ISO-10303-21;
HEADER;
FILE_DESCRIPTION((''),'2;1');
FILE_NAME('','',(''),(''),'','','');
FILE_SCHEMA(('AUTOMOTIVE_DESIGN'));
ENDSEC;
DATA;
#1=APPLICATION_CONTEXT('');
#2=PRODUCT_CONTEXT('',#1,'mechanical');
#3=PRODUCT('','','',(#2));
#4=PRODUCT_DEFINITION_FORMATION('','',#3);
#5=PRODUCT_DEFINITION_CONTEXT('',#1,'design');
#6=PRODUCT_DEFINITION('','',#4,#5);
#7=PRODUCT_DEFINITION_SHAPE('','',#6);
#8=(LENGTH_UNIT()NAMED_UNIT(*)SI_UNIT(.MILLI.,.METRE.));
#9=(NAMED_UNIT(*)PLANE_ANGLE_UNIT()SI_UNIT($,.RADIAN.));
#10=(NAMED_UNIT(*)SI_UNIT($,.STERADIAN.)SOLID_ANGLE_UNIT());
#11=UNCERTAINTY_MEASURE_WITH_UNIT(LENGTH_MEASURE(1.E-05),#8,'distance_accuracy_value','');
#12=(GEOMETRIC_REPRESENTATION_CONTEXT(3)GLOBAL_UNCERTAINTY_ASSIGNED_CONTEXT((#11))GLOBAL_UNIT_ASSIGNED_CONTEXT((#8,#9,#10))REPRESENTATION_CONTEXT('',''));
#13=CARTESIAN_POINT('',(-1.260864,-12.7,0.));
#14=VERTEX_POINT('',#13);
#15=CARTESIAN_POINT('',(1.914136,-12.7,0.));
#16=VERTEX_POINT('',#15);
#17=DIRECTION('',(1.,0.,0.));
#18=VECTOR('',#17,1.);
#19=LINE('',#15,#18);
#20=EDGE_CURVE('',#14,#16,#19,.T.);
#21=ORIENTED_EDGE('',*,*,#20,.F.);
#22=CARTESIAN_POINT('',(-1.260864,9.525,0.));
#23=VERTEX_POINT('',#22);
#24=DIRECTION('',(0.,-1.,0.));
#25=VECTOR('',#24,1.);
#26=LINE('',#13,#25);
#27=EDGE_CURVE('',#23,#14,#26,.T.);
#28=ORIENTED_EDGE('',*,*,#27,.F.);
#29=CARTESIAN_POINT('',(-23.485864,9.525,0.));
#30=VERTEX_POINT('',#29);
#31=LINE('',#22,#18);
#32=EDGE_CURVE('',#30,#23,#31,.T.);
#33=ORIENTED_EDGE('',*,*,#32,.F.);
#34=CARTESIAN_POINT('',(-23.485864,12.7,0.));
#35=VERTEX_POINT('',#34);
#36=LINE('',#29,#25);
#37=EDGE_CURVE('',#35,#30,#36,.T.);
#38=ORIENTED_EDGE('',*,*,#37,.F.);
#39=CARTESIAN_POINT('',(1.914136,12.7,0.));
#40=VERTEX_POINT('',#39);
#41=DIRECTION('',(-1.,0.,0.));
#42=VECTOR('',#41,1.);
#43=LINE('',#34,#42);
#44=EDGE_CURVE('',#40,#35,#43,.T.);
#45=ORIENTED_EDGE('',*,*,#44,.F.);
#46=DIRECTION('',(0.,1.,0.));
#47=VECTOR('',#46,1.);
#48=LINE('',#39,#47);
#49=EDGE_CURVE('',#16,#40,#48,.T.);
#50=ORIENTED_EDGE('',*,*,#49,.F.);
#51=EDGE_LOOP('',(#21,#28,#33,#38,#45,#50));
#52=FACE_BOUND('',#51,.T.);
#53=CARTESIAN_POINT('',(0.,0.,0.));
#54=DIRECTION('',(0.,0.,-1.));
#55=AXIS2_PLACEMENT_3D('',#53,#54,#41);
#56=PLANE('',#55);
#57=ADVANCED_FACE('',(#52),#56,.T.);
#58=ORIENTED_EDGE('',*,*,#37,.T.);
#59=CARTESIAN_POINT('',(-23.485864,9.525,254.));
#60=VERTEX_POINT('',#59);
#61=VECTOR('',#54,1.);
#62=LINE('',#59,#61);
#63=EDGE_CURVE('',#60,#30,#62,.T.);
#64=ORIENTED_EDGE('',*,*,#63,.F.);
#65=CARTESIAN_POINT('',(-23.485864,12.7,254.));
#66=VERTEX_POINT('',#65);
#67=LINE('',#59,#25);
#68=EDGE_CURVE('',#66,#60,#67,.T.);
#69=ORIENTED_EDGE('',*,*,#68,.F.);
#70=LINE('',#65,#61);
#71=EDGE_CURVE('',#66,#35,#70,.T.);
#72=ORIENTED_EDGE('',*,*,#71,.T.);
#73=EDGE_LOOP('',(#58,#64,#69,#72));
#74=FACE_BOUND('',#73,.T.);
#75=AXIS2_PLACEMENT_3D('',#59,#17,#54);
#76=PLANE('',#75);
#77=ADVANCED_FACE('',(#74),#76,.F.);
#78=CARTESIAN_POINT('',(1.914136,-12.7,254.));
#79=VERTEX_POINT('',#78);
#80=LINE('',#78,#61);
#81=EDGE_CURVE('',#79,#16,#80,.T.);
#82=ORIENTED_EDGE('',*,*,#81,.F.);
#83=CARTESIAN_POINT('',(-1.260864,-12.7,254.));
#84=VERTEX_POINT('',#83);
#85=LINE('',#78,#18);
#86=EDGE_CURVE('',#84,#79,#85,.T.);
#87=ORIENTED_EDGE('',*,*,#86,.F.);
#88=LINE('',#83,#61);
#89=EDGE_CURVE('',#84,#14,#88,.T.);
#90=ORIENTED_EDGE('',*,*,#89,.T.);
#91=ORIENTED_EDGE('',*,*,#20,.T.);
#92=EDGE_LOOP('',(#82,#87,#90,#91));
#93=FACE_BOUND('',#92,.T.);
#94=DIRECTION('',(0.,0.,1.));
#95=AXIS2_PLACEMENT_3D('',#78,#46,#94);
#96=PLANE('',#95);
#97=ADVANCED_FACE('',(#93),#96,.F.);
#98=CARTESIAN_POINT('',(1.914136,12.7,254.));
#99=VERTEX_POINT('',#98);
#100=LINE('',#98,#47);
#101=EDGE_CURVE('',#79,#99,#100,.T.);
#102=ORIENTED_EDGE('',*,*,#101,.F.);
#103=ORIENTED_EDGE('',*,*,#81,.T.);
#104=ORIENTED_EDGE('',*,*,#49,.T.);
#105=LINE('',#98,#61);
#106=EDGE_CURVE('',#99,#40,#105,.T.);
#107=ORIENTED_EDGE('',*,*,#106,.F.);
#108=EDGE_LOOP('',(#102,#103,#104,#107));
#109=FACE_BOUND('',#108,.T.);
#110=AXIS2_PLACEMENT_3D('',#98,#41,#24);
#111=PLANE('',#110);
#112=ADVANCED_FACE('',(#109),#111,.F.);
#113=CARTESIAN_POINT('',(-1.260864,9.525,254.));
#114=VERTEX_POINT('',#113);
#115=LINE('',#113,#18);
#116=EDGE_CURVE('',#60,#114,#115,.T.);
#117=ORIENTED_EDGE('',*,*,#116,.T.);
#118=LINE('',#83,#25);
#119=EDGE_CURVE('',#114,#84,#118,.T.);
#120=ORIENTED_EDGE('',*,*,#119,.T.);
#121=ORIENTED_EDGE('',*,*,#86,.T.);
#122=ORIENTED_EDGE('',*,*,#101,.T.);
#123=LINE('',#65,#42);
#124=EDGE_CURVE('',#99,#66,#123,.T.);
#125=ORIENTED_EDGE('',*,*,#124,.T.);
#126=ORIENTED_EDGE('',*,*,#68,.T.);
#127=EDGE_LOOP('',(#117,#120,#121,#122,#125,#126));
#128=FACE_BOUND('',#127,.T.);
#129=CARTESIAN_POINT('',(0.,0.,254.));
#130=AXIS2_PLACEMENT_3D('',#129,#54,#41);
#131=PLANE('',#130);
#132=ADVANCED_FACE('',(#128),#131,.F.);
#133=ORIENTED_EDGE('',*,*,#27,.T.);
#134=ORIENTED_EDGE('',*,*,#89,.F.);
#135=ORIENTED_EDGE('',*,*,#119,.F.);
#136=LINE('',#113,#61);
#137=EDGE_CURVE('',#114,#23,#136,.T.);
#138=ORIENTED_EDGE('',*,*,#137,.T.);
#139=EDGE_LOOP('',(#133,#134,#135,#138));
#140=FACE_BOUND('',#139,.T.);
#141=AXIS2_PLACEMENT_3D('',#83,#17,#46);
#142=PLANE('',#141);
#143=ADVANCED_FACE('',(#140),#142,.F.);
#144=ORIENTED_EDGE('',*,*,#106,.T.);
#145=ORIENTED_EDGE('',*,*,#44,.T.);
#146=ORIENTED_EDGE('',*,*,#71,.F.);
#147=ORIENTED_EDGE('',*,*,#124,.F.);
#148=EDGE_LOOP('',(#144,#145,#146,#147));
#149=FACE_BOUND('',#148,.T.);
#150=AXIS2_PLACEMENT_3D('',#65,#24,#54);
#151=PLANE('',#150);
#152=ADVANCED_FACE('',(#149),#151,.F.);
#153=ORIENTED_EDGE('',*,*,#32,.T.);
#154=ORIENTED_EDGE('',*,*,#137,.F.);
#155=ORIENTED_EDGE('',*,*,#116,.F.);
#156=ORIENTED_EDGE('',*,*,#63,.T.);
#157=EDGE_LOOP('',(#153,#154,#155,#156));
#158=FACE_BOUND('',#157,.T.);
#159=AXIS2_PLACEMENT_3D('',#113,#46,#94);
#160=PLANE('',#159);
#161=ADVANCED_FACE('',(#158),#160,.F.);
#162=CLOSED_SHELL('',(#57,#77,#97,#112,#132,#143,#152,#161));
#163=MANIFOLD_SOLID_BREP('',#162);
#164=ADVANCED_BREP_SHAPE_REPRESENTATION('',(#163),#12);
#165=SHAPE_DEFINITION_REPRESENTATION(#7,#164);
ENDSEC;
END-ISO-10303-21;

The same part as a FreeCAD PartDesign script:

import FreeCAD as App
import Part
import Sketcher

V = App.Vector
Q = App.Units.Quantity

doc = App.newDocument("Part")
body = doc.addObject("PartDesign::Body", "Body")

sketch1 = body.newObject("Sketcher::SketchObject", "Sketch")
sketch1.AttachmentSupport = (doc.getObject("XY_Plane"), [""])
sketch1.MapMode = "FlatFace"
sketch1.addGeometry(Part.LineSegment(V(1.914136, -12.7, 0), V(1.914136, 12.7, 0)), False)
sketch1.addGeometry(Part.LineSegment(V(1.914136, 12.7, 0), V(-23.485864, 12.7, 0)), False)
sketch1.addGeometry(Part.LineSegment(V(-23.485864, 12.7, 0), V(-23.485864, 9.525, 0)), False)
sketch1.addGeometry(Part.LineSegment(V(-23.485864, 9.525, 0), V(-1.260864, 9.525, 0)), False)
sketch1.addGeometry(Part.LineSegment(V(-1.260864, 9.525, 0), V(-1.260864, -12.7, 0)), False)
sketch1.addGeometry(Part.LineSegment(V(-1.260864, -12.7, 0), V(1.914136, -12.7, 0)), False)
sketch1.addConstraint(Sketcher.Constraint("Coincident", 0, 2, 1, 1))
sketch1.addConstraint(Sketcher.Constraint("Coincident", 1, 2, 2, 1))
sketch1.addConstraint(Sketcher.Constraint("Coincident", 2, 2, 3, 1))
sketch1.addConstraint(Sketcher.Constraint("Coincident", 3, 2, 4, 1))
sketch1.addConstraint(Sketcher.Constraint("Coincident", 4, 2, 5, 1))
sketch1.addConstraint(Sketcher.Constraint("Coincident", 5, 2, 0, 1))
sketch1.addConstraint(Sketcher.Constraint("Vertical", 0))
sketch1.addConstraint(Sketcher.Constraint("Horizontal", 1))
sketch1.addConstraint(Sketcher.Constraint("Vertical", 2))
sketch1.addConstraint(Sketcher.Constraint("Horizontal", 3))
sketch1.addConstraint(Sketcher.Constraint("Vertical", 4))
sketch1.addConstraint(Sketcher.Constraint("Horizontal", 5))
sketch1.addConstraint(Sketcher.Constraint("Equal", 1, 0))
sketch1.addConstraint(Sketcher.Constraint("Equal", 5, 2))
sketch1.addConstraint(Sketcher.Constraint("DistanceX", 1, 2, 1, 1, Q("1 in")))
sketch1.addConstraint(Sketcher.Constraint("DistanceY", -1, 1, 0, 2, Q("0.5 in")))
sketch1.addConstraint(Sketcher.Constraint("DistanceX", 3, 1, 3, 2, Q("0.875 in")))
sketch1.addConstraint(Sketcher.Constraint("DistanceX", -1, 1, 0, 2, 1.914136))
pad1 = body.newObject("PartDesign::Pad", "Pad")
pad1.Profile = sketch1
pad1.Length = Q("10 in")

doc.recompute()
